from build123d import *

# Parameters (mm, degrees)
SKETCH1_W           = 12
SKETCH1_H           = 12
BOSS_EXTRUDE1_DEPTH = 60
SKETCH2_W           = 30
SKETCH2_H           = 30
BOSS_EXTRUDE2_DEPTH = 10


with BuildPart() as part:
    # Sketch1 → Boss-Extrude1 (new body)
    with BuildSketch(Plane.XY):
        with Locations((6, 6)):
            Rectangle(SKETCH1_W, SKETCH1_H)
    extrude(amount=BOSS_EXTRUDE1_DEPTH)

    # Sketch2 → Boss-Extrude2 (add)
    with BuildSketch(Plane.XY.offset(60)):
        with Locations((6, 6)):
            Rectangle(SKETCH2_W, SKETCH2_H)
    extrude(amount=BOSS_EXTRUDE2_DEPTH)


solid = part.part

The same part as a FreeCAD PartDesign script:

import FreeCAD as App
import Part
import Sketcher

V = App.Vector
Q = App.Units.Quantity


def add_polygon(sketch, points):
    """Adds a closed chain of lines whose ends are joined by coincident constraints."""
    first, n = sketch.GeometryCount, len(points)
    for a, b in zip(points, points[1:] + points[:1]):
        sketch.addGeometry(Part.LineSegment(App.Vector(*a, 0), App.Vector(*b, 0)), False)
    for i in range(n):
        sketch.addConstraint(Sketcher.Constraint("Coincident", first + i, 2, first + (i + 1) % n, 1))

doc = App.newDocument("Part")
body = doc.addObject("PartDesign::Body", "Body")

# Sketch on XY plane
sketch1 = doc.addObject("Sketcher::SketchObject", "Sketch")
body.addObject(sketch1)
sketch1.AttachmentSupport = (doc.XY_Plane, [""])
sketch1.MapMode = "FlatFace"
add_polygon(sketch1, [(0, 12), (0, 0), (12, 0), (12, 12)])  # lines 0-3
sketch1.addConstraint([
    Sketcher.Constraint("Vertical", 0),
    Sketcher.Constraint("Horizontal", 1),
    Sketcher.Constraint("Vertical", 2),
    Sketcher.Constraint("Horizontal", 3),
    Sketcher.Constraint("Coincident", 0, 2, -1, 1),
    Sketcher.Constraint("Equal", 3, 0),
    Sketcher.Constraint("DistanceX", 1, 1, 1, 2, Q("12 mm")),
])
pad1 = doc.addObject("PartDesign::Pad", "Pad")
body.addObject(pad1)
pad1.Profile = sketch1
pad1.Length = 60

# Sketch on XY plane
sketch2 = doc.addObject("Sketcher::SketchObject", "Sketch001")
body.addObject(sketch2)
sketch2.AttachmentSupport = (doc.XY_Plane, [""])
sketch2.MapMode = "FlatFace"
sketch2.AttachmentOffset = App.Placement(V(0, 0, 60), App.Rotation())
add_polygon(sketch2, [(-9, 21), (-9, -9), (21, -9), (21, 21)])  # lines 0-3
sketch2.addConstraint([
    Sketcher.Constraint("Vertical", 0),
    Sketcher.Constraint("Horizontal", 1),
    Sketcher.Constraint("Vertical", 2),
    Sketcher.Constraint("Horizontal", 3),
    Sketcher.Constraint("Equal", 3, 0),
    Sketcher.Constraint("DistanceX", 1, 1, 1, 2, Q("30 mm")),
    Sketcher.Constraint("DistanceX", 0, 2, -1, 1, Q("9 mm")),
    Sketcher.Constraint("DistanceY", 0, 2, -1, 1, Q("9 mm")),
])
pad2 = doc.addObject("PartDesign::Pad", "Pad001")
body.addObject(pad2)
pad2.Profile = sketch2
pad2.Length = 10

doc.recompute()
